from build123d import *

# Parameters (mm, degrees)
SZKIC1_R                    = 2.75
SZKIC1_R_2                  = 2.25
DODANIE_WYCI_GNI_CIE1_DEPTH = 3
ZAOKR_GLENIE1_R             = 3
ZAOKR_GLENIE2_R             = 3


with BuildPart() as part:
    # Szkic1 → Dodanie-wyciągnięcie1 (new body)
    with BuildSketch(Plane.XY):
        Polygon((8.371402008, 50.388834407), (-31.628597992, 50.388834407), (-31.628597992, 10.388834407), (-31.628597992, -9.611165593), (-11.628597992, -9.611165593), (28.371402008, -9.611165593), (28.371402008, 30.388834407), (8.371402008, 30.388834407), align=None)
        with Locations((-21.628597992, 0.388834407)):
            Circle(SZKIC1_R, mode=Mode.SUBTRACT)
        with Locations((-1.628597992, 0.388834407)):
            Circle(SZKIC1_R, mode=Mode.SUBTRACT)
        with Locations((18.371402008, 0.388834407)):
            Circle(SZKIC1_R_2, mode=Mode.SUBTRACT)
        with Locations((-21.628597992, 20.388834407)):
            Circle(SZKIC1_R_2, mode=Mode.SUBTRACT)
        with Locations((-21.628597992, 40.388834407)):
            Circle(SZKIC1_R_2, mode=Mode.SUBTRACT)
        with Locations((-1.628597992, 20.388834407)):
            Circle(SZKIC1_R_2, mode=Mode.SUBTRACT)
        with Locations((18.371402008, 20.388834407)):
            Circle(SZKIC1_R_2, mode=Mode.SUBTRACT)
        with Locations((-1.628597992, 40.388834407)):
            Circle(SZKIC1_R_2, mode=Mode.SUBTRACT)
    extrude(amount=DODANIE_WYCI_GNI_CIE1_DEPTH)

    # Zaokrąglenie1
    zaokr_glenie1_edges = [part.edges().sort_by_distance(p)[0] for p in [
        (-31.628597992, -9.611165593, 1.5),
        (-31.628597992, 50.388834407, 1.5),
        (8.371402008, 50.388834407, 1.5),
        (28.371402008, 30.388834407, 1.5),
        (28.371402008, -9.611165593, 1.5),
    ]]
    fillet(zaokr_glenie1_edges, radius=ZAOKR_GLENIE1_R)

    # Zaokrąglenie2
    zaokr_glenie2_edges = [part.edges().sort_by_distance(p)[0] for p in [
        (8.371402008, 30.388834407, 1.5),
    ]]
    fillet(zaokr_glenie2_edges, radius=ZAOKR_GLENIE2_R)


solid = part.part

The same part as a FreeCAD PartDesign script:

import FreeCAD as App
import Part
import Sketcher
from FreeCAD import Vector
Q = App.Units.Quantity


def edges_at(feature, points):
    """Names of the edges that pass closest to the given points."""
    edges = feature.Shape.Edges
    near = lambda p: min(range(len(edges)), key=lambda i: edges[i].distToShape(Part.Vertex(*p))[0])
    return sorted({f"Edge{near(p) + 1}" for p in points})

doc = App.newDocument("Part")
body = doc.addObject("PartDesign::Body", "Body")

sketch1 = body.newObject("Sketcher::SketchObject", "Sketch")
sketch1.AttachmentSupport = (doc.getObject("XY_Plane"), [""])
sketch1.MapMode = "FlatFace"
sketch1.addGeometry([
    Part.LineSegment(Vector(8.4, 50.4, 0), Vector(-31.6, 50.4, 0)),
    Part.LineSegment(Vector(-31.6, 50.4, 0), Vector(-31.6, -9.6, 0)),
    Part.LineSegment(Vector(-31.6, -9.6, 0), Vector(28.4, -9.6, 0)),
    Part.LineSegment(Vector(28.4, -9.6, 0), Vector(28.4, 30.4, 0)),
    Part.LineSegment(Vector(28.4, 30.4, 0), Vector(8.4, 30.4, 0)),
    Part.LineSegment(Vector(8.4, 30.4, 0), Vector(8.4, 50.4, 0)),
    Part.Circle(Vector(-21.6, 0.4, 0), Vector(0, 0, 1), 2.8),
    Part.Circle(Vector(-1.6, 0.4, 0), Vector(0, 0, 1), 2.8),
    Part.Circle(Vector(18.4, 0.4, 0), Vector(0, 0, 1), 2.2),
    Part.Circle(Vector(-21.6, 20.4, 0), Vector(0, 0, 1), 2.2),
    Part.Circle(Vector(-21.6, 40.4, 0), Vector(0, 0, 1), 2.2),
    Part.Circle(Vector(-1.6, 20.4, 0), Vector(0, 0, 1), 2.2),
    Part.Circle(Vector(18.4, 20.4, 0), Vector(0, 0, 1), 2.2),
    Part.Circle(Vector(-1.6, 40.4, 0), Vector(0, 0, 1), 2.2),
], False)
sketch1.addConstraint([
    Sketcher.Constraint("Coincident", 0, 2, 1, 1),
    Sketcher.Constraint("Coincident", 1, 2, 2, 1),
    Sketcher.Constraint("Coincident", 2, 2, 3, 1),
    Sketcher.Constraint("Coincident", 3, 2, 4, 1),
    Sketcher.Constraint("Coincident", 4, 2, 5, 1),
    Sketcher.Constraint("Coincident", 5, 2, 0, 1),
    Sketcher.Constraint("Horizontal", 0),
    Sketcher.Constraint("Vertical", 1),
    Sketcher.Constraint("Horizontal", 2),
    Sketcher.Constraint("Vertical", 3),
    Sketcher.Constraint("Horizontal", 4),
    Sketcher.Constraint("Vertical", 5),
    Sketcher.Constraint("Equal", 6, 7),
    Sketcher.Constraint("Equal", 8, 9),
    Sketcher.Constraint("Equal", 9, 10),
    Sketcher.Constraint("Equal", 10, 11),
    Sketcher.Constraint("Equal", 11, 12),
    Sketcher.Constraint("Equal", 12, 13),
    Sketcher.Constraint("Horizontal", 6, 3, 7, 3),
    Sketcher.Constraint("Horizontal", 7, 3, 8, 3),
    Sketcher.Constraint("Horizontal", 9, 3, 11, 3),
    Sketcher.Constraint("Horizontal", 11, 3, 12, 3),
    Sketcher.Constraint("Horizontal", 10, 3, 13, 3),
    Sketcher.Constraint("Vertical", 6, 3, 9, 3),
    Sketcher.Constraint("Vertical", 9, 3, 10, 3),
    Sketcher.Constraint("Vertical", 7, 3, 11, 3),
    Sketcher.Constraint("Vertical", 8, 3, 12, 3),
    Sketcher.Constraint("Vertical", 11, 3, 13, 3),
    Sketcher.Constraint("Equal", 2, 1),
    Sketcher.Constraint("Equal", 0, 3),
    Sketcher.Constraint("Diameter", 6, Q("5.5 mm")),
    Sketcher.Constraint("Diameter", 8, Q("4.5 mm")),
    Sketcher.Constraint("DistanceX", 0, 2, 0, 1, Q("40 mm")),
    Sketcher.Constraint("DistanceX", 2, 1, 2, 2, Q("60 mm")),
    Sketcher.Constraint("DistanceX", 6, 3, 7, 3, Q("20 mm")),
    Sketcher.Constraint("DistanceX", 7, 3, 8, 3, Q("20 mm")),
    Sketcher.Constraint("DistanceY", 6, 3, 9, 3, Q("20 mm")),
    Sketcher.Constraint("DistanceY", 9, 3, 10, 3, Q("20 mm")),
    Sketcher.Constraint("DistanceX", 0, 2, 10, 3, Q("10 mm")),
    Sketcher.Constraint("DistanceY", 10, 3, 0, 2, Q("10 mm")),
    Sketcher.Constraint("DistanceX", 6, 3, -1, 1, Q("21.628598 mm")),
    Sketcher.Constraint("DistanceY", -1, 1, 6, 3, Q("0.388834 mm")),
])
pad1 = body.newObject("PartDesign::Pad", "Pad")
pad1.Profile = sketch1
pad1.Length = 3
doc.recompute()

fillet = body.newObject("PartDesign::Fillet", "Fillet")
fillet.Base = (pad1, edges_at(pad1, [
    (-31.629, -9.611, 1.5),
    (-31.629, 50.389, 1.5),
    (8.371, 50.389, 1.5),
    (28.371, 30.389, 1.5),
    (28.371, -9.611, 1.5),
]))
fillet.Radius = 3
doc.recompute()

fillet2 = body.newObject("PartDesign::Fillet", "Fillet001")
fillet2.Base = (fillet, edges_at(fillet, [(8.371, 30.389, 1.5)]))
fillet2.Radius = 3

doc.recompute()
